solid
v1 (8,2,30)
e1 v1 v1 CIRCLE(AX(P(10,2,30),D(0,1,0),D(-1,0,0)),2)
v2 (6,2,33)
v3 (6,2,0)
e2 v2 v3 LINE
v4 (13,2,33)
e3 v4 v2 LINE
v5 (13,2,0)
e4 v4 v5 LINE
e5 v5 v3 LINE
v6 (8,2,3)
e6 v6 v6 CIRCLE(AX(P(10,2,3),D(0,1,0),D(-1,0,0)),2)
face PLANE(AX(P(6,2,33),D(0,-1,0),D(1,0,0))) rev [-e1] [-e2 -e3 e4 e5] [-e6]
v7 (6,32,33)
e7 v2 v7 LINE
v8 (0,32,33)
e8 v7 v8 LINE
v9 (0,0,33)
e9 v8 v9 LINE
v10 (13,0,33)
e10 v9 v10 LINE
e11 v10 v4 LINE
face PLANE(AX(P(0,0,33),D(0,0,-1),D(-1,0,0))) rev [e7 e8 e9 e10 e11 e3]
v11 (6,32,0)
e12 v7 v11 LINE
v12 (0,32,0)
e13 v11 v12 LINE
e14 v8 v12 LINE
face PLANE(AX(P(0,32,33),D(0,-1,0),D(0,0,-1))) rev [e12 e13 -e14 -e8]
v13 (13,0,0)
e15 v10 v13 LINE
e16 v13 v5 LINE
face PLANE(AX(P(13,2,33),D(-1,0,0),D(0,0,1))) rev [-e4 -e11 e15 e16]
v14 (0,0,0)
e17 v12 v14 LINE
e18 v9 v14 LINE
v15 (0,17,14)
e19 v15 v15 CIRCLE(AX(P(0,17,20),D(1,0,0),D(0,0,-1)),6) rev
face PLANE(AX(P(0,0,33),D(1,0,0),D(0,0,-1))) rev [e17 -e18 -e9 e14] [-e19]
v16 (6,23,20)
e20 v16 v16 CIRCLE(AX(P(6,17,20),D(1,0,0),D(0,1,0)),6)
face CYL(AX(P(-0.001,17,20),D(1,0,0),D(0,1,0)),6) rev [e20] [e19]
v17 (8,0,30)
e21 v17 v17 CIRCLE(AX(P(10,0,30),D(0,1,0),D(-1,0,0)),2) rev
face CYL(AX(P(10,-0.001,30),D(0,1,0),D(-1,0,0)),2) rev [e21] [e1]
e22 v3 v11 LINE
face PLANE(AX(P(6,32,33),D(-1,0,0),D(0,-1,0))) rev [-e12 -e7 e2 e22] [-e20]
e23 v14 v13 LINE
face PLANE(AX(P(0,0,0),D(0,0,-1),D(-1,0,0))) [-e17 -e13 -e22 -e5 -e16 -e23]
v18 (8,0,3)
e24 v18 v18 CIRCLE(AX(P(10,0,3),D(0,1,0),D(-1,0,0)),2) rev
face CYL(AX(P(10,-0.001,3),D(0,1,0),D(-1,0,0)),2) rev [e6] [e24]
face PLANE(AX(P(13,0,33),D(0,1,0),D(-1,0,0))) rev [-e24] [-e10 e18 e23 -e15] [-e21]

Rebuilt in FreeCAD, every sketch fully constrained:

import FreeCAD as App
import Part
import Sketcher

V = App.Vector


def add_polygon(sketch, points):
    """Adds a closed chain of lines whose ends are joined by coincident constraints."""
    first, n = sketch.GeometryCount, len(points)
    for a, b in zip(points, points[1:] + points[:1]):
        sketch.addGeometry(Part.LineSegment(App.Vector(*a, 0), App.Vector(*b, 0)), False)
    for i in range(n):
        sketch.addConstraint(Sketcher.Constraint("Coincident", first + i, 2, first + (i + 1) % n, 1))

doc = App.newDocument("Part")
body = doc.addObject("PartDesign::Body", "Body")

# Sketch on XY plane
sketch1 = body.newObject("Sketcher::SketchObject", "Sketch")
sketch1.AttachmentSupport = (doc.getObject("XY_Plane"), [""])
sketch1.MapMode = "FlatFace"
add_polygon(sketch1, [(0, 32), (0, 0), (13, 0), (13, 2), (6, 2), (6, 32)])  # lines 0-5
sketch1.addConstraint([
    Sketcher.Constraint("Vertical", 0),
    Sketcher.Constraint("Horizontal", 1),
    Sketcher.Constraint("Vertical", 2),
    Sketcher.Constraint("Horizontal", 3),
    Sketcher.Constraint("Vertical", 4),
    Sketcher.Constraint("Horizontal", 5),
    Sketcher.Constraint("Coincident", 0, 2, -1, 1),
    Sketcher.Constraint("DistanceX", 1, 1, 1, 2, 13.0),
    Sketcher.Constraint("DistanceX", 3, 2, 3, 1, 7.0),
    Sketcher.Constraint("DistanceY", 0, 2, 0, 1, 32.0),
    Sketcher.Constraint("DistanceY", 2, 1, 2, 2, 2.0),
])
pad1 = body.newObject("PartDesign::Pad", "Pad")
pad1.Profile = sketch1
pad1.Length = 33

# Sketch on YZ plane
sketch2 = body.newObject("Sketcher::SketchObject", "Sketch001")
sketch2.AttachmentSupport = (doc.getObject("YZ_Plane"), [""])
sketch2.MapMode = "FlatFace"
sketch2.AttachmentOffset = App.Placement(V(0, 0, 6), App.Rotation())
sketch2.addGeometry(Part.Circle(V(17, 20, 0), V(0, 0, 1), 6), False)
sketch2.addConstraint([
    Sketcher.Constraint("Diameter", 0, 12.0),
    Sketcher.Constraint("DistanceX", -1, 1, 0, 3, 17.0),
    Sketcher.Constraint("DistanceY", -1, 1, 0, 3, 20.0),
])
pocket1 = body.newObject("PartDesign::Pocket", "Pocket")
pocket1.Profile = sketch2
pocket1.Type = "UpToFirst"

# Sketch on XZ plane
sketch3 = body.newObject("Sketcher::SketchObject", "Sketch002")
sketch3.AttachmentSupport = (doc.getObject("XZ_Plane"), [""])
sketch3.MapMode = "FlatFace"
sketch3.AttachmentOffset = App.Placement(V(0, 0, -2), App.Rotation())
sketch3.addGeometry(Part.Circle(V(10, 3, 0), V(0, 0, 1), 2), False)
sketch3.addConstraint([
    Sketcher.Constraint("Diameter", 0, 4.0),
    Sketcher.Constraint("DistanceX", -1, 1, 0, 3, 10.0),
    Sketcher.Constraint("DistanceY", -1, 1, 0, 3, 3.0),
])
pocket2 = body.newObject("PartDesign::Pocket", "Pocket001")
pocket2.Profile = sketch3
pocket2.Type = "UpToFirst"
pocket2.Reversed = True

# Sketch on XZ plane
sketch4 = body.newObject("Sketcher::SketchObject", "Sketch003")
sketch4.AttachmentSupport = (doc.getObject("XZ_Plane"), [""])
sketch4.MapMode = "FlatFace"
sketch4.AttachmentOffset = App.Placement(V(0, 0, -2), App.Rotation())
sketch4.addGeometry(Part.Circle(V(10, 30, 0), V(0, 0, 1), 2), False)
sketch4.addConstraint([
    Sketcher.Constraint("Diameter", 0, 4.0),
    Sketcher.Constraint("DistanceX", -1, 1, 0, 3, 10.0),
    Sketcher.Constraint("DistanceY", -1, 1, 0, 3, 30.0),
])
pocket3 = body.newObject("PartDesign::Pocket", "Pocket002")
pocket3.Profile = sketch4
pocket3.Type = "UpToFirst"
pocket3.Reversed = True

doc.recompute()
